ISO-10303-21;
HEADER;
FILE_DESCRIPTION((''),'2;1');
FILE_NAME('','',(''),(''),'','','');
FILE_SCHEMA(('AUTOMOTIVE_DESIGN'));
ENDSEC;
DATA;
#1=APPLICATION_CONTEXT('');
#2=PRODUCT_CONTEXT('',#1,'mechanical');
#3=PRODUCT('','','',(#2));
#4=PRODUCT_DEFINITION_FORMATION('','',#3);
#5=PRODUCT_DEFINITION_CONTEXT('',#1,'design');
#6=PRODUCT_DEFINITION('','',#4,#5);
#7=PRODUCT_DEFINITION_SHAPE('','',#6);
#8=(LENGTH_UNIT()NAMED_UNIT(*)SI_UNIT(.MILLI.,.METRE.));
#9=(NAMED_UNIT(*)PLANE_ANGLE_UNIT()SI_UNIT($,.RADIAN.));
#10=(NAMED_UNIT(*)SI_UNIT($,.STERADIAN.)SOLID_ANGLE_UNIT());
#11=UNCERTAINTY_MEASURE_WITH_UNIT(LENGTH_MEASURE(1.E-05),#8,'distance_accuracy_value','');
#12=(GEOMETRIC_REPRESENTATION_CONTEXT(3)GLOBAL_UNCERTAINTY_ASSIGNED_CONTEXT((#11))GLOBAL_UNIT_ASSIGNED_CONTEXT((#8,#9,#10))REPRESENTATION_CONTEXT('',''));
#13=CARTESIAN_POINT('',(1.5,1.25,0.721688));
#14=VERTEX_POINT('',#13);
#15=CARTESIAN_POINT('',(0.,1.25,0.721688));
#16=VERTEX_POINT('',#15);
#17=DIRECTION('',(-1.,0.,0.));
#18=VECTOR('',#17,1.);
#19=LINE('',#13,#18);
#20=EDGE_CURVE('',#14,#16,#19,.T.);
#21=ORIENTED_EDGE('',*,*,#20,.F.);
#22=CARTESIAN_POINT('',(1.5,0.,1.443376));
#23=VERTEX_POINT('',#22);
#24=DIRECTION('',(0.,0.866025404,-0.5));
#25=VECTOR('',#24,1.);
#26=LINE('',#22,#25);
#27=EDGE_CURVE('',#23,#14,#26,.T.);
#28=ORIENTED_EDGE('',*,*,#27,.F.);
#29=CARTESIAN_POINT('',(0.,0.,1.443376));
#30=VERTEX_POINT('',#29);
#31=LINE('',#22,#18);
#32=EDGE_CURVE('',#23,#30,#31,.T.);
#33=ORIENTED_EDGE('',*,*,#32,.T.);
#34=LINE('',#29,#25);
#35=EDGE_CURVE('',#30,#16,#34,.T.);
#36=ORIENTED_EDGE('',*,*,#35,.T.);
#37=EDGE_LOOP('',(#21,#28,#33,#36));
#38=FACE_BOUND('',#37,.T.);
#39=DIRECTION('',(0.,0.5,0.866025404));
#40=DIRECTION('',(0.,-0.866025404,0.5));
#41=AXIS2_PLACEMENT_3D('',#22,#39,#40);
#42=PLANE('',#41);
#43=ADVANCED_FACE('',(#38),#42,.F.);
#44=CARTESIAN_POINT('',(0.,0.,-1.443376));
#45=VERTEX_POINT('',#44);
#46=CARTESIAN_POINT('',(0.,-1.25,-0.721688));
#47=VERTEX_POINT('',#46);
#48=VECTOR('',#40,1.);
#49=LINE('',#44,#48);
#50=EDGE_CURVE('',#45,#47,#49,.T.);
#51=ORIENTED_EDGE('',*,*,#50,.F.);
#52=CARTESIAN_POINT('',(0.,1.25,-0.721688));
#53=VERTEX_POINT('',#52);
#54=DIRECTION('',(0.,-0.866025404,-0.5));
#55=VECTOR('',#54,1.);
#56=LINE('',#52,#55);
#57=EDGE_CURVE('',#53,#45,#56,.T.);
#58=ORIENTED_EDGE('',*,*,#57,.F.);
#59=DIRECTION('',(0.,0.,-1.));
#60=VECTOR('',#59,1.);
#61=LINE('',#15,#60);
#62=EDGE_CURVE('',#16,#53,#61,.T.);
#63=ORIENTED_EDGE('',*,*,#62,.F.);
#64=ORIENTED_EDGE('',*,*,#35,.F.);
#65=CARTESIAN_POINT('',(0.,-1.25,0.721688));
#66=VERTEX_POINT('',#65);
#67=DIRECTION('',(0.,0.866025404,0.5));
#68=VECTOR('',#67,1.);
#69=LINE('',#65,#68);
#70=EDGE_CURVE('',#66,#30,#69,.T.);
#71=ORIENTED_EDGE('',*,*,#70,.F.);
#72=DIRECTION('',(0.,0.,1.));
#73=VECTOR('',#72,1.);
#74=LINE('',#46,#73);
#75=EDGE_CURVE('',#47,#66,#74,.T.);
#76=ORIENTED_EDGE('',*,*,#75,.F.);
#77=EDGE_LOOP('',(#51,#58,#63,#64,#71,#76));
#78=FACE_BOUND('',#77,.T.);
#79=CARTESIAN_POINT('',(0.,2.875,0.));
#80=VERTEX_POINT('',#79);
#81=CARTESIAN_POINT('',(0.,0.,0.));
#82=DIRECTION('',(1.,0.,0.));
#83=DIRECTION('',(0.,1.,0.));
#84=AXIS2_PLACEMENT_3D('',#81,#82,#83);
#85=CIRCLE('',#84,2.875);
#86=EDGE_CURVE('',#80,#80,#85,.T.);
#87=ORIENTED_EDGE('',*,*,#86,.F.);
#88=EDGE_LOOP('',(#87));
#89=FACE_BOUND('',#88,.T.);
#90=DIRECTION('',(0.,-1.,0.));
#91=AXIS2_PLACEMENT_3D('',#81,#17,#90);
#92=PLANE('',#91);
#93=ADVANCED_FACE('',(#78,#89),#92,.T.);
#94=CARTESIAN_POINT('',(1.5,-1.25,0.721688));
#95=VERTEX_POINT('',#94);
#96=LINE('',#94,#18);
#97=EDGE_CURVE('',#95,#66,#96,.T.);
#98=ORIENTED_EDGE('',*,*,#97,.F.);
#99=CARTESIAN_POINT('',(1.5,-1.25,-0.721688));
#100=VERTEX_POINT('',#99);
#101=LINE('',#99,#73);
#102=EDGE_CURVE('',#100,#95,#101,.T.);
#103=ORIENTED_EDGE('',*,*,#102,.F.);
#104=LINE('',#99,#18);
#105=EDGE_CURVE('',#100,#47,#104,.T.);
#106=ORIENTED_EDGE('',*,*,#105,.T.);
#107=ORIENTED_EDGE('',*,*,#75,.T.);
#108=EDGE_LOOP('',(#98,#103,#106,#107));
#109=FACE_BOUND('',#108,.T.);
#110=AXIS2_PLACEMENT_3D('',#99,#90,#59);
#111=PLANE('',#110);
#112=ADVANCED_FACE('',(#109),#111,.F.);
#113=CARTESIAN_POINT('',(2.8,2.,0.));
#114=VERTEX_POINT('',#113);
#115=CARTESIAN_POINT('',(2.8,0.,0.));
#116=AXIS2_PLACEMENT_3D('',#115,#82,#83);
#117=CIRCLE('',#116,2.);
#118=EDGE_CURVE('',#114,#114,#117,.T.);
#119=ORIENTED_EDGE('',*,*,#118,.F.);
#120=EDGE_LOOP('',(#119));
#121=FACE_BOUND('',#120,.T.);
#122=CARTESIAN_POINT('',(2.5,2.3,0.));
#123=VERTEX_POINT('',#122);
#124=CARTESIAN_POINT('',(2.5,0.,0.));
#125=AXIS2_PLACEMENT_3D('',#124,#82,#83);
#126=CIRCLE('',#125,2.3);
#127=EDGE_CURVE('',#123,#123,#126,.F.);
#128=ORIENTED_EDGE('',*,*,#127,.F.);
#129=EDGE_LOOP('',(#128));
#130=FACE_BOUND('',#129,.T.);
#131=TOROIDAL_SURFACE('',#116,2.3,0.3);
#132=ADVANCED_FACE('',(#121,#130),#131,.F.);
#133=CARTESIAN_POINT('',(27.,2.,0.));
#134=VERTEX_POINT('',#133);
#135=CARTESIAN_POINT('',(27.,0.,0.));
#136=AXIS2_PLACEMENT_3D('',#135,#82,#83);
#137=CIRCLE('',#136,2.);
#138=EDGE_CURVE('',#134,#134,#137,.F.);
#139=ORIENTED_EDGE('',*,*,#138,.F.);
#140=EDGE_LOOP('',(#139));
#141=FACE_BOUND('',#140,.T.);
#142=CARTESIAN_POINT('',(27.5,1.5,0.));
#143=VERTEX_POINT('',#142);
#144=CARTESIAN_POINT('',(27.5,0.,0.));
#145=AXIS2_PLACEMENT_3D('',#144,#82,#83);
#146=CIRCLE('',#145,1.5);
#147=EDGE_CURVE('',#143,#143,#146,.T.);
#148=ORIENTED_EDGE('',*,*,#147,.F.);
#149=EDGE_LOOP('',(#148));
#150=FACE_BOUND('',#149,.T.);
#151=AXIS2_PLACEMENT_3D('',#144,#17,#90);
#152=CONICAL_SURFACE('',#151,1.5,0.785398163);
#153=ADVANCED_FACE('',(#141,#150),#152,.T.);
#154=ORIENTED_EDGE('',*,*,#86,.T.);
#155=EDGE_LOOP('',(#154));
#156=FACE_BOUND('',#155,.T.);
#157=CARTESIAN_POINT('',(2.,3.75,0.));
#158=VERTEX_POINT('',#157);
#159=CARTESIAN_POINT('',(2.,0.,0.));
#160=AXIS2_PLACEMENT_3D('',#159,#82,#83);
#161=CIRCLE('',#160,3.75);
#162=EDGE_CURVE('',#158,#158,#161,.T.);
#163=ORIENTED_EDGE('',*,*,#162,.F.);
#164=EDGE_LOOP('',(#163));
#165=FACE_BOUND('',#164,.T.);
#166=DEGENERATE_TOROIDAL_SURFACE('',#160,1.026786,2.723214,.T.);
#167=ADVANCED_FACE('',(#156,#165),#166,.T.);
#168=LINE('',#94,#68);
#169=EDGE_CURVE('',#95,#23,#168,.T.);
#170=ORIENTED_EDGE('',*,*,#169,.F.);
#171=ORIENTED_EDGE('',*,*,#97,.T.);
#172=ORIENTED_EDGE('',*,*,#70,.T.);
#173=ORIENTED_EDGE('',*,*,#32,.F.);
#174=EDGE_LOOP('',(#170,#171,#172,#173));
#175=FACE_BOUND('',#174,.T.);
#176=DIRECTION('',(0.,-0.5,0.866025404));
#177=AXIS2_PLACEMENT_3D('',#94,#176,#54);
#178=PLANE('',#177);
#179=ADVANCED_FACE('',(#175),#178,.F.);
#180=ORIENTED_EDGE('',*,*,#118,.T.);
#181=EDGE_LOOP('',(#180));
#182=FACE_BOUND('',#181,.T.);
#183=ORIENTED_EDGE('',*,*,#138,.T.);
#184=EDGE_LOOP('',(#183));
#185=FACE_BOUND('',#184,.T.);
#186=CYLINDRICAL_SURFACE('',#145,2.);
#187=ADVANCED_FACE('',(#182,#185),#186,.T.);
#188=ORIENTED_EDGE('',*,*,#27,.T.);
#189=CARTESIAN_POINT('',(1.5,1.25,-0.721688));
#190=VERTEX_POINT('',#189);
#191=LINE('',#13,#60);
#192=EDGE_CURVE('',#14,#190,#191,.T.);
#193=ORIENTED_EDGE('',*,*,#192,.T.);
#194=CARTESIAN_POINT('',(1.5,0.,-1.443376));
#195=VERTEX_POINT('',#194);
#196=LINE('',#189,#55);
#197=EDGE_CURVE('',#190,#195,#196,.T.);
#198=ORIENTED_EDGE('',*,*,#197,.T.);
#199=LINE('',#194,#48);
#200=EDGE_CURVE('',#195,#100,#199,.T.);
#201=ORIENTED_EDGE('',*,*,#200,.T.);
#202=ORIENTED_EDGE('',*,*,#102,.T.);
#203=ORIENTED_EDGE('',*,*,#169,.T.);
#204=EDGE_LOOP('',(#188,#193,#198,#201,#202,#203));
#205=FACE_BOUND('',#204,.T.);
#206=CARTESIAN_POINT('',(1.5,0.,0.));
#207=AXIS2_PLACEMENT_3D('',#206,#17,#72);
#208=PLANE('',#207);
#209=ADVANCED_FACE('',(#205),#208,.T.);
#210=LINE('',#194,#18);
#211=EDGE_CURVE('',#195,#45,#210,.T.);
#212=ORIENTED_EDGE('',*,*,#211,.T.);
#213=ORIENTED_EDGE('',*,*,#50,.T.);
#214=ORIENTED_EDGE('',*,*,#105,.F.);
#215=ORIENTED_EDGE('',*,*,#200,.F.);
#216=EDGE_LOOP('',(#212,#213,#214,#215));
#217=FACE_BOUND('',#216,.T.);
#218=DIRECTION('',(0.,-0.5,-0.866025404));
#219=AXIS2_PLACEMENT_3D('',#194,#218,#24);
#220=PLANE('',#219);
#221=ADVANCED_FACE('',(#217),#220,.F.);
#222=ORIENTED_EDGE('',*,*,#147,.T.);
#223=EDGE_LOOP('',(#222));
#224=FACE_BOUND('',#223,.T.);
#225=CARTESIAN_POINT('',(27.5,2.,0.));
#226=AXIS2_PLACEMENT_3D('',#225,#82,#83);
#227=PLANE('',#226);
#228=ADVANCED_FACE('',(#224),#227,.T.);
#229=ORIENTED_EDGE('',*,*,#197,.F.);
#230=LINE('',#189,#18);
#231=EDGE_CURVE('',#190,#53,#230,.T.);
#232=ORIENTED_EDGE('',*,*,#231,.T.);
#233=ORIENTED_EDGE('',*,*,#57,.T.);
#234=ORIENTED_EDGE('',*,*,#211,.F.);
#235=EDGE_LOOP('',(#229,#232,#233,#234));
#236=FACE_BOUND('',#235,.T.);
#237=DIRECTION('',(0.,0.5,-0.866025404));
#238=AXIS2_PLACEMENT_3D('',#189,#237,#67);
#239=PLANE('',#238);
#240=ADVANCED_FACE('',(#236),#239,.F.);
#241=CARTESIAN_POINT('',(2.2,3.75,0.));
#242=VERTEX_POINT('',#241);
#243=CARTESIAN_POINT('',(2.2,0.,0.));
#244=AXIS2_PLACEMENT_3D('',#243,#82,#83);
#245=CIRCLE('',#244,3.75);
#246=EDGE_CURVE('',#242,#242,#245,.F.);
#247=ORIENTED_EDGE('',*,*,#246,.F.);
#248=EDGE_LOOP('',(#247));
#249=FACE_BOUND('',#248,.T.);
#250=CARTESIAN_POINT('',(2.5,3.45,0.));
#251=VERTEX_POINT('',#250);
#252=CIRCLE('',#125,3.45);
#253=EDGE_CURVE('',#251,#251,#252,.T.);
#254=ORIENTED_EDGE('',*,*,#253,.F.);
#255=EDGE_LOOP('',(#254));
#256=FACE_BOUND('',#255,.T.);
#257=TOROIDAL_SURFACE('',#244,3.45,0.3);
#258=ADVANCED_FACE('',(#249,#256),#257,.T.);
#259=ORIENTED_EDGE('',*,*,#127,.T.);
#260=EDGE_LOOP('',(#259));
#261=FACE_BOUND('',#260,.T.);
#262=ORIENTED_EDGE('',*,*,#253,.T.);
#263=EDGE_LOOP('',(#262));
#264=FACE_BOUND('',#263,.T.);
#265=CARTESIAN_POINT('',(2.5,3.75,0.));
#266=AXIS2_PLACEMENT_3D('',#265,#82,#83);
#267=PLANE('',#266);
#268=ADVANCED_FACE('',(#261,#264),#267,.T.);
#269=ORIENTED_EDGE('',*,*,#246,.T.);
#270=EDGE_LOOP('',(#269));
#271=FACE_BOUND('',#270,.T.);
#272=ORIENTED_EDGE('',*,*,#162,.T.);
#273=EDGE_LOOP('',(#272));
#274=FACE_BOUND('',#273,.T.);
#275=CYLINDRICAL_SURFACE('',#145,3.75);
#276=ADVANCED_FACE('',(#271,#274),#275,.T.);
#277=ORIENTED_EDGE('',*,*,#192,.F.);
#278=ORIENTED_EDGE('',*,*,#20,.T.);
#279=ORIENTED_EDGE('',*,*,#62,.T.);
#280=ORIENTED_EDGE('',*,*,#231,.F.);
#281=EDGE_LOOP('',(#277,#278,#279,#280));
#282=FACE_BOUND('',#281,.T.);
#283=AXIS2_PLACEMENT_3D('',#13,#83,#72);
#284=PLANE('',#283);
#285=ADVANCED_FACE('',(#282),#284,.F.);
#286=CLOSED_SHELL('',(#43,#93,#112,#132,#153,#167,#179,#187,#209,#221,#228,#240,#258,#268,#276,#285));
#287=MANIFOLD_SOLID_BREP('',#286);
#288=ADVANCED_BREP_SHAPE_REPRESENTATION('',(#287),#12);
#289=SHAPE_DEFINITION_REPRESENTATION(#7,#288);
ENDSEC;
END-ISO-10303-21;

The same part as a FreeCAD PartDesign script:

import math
import FreeCAD as App
import Part
import Sketcher
from FreeCAD import Vector
Q = App.Units.Quantity


def edges_at(feature, points):
    """Names of the edges that pass closest to the given points."""
    edges = feature.Shape.Edges
    near = lambda p: min(range(len(edges)), key=lambda i: edges[i].distToShape(Part.Vertex(*p))[0])
    return sorted({f"Edge{near(p) + 1}" for p in points})


def add_polygon(sketch, points):
    """Adds a closed chain of lines whose ends are joined by coincident constraints."""
    first, n = sketch.GeometryCount, len(points)
    for a, b in zip(points, points[1:] + points[:1]):
        sketch.addGeometry(Part.LineSegment(App.Vector(*a, 0), App.Vector(*b, 0)), False)
    for i in range(n):
        sketch.addConstraint(Sketcher.Constraint("Coincident", first + i, 2, first + (i + 1) % n, 1))

doc = App.newDocument("Part")
body = doc.addObject("PartDesign::Body", "Body")

sketch1 = body.newObject("Sketcher::SketchObject", "Sketch")
sketch1.AttachmentSupport = (doc.getObject("XY_Plane"), [""])
sketch1.MapMode = "FlatFace"
sketch1.addGeometry(Part.LineSegment(Vector(0, 2.9, 0), Vector(0, 0, 0)), False)
sketch1.addGeometry(Part.LineSegment(Vector(0, 0, 0), Vector(27.5, 0, 0)), False)
sketch1.addGeometry(Part.LineSegment(Vector(27.5, 0, 0), Vector(27.5, 2, 0)), False)
sketch1.addGeometry(Part.LineSegment(Vector(27.5, 2, 0), Vector(2.5, 2, 0)), False)
sketch1.addGeometry(Part.LineSegment(Vector(2.5, 2, 0), Vector(2.5, 3.8, 0)), False)
sketch1.addGeometry(Part.LineSegment(Vector(2.5, 3.8, 0), Vector(2, 3.8, 0)), False)
sketch1.addGeometry(Part.ArcOfCircle(Part.Circle(Vector(2, 1, 0), Vector(0, 0, 1), 2.7), math.radians(90), math.radians(137)), False)
sketch1.addConstraint(Sketcher.Constraint("Coincident", 0, 2, 1, 1))
sketch1.addConstraint(Sketcher.Constraint("Coincident", 1, 2, 2, 1))
sketch1.addConstraint(Sketcher.Constraint("Coincident", 2, 2, 3, 1))
sketch1.addConstraint(Sketcher.Constraint("Coincident", 3, 2, 4, 1))
sketch1.addConstraint(Sketcher.Constraint("Coincident", 4, 2, 5, 1))
sketch1.addConstraint(Sketcher.Constraint("Tangent", 5, 2, 6, 1))
sketch1.addConstraint(Sketcher.Constraint("Coincident", 6, 2, 0, 1))
sketch1.addConstraint(Sketcher.Constraint("Vertical", 0))
sketch1.addConstraint(Sketcher.Constraint("Horizontal", 1))
sketch1.addConstraint(Sketcher.Constraint("Vertical", 2))
sketch1.addConstraint(Sketcher.Constraint("Horizontal", 3))
sketch1.addConstraint(Sketcher.Constraint("Vertical", 4))
sketch1.addConstraint(Sketcher.Constraint("Horizontal", 5))
sketch1.addConstraint(Sketcher.Constraint("Coincident", 0, 2, -1, 1))
sketch1.addConstraint(Sketcher.Constraint("DistanceX", 3, 2, 3, 1, 25.0))
sketch1.addConstraint(Sketcher.Constraint("DistanceY", 2, 1, 2, 2, 2.0))
sketch1.addConstraint(Sketcher.Constraint("DistanceX", 1, 1, 1, 2, 27.5))
sketch1.addConstraint(Sketcher.Constraint("DistanceX", 5, 2, 5, 1, 0.5))
sketch1.addConstraint(Sketcher.Constraint("DistanceY", 4, 1, 4, 2, 1.75))
sketch1.addConstraint(Sketcher.Constraint("DistanceY", 0, 2, 0, 1, 2.875))
revolution = body.newObject("PartDesign::Revolution", "Revolution")
revolution.Profile = sketch1
revolution.ReferenceAxis = (sketch1, ["H_Axis"])
revolution.Angle = 360

sketch2 = body.newObject("Sketcher::SketchObject", "Sketch001")
sketch2.AttachmentSupport = (doc.getObject("YZ_Plane"), [""])
sketch2.MapMode = "FlatFace"
add_polygon(sketch2, [(1.2, 0.7), (1.2, -0.7), (0, -1.4), (-1.2, -0.7), (-1.2, 0.7), (0, 1.4)])
sketch2.addConstraint(Sketcher.Constraint("Vertical", 0))
sketch2.addConstraint(Sketcher.Constraint("Vertical", 3))
sketch2.addConstraint(Sketcher.Constraint("Symmetric", 0, 2, 3, 2, -1, 1))
sketch2.addConstraint(Sketcher.Constraint("Symmetric", 1, 2, 4, 2, -1, 1))
sketch2.addConstraint(Sketcher.Constraint("PointOnObject", 1, 2, -2))
sketch2.addConstraint(Sketcher.Constraint("Parallel", 2, 5))
sketch2.addConstraint(Sketcher.Constraint("Horizontal", 0, 2, 2, 2))
sketch2.addConstraint(Sketcher.Constraint("Angle", 1, Q("-150 deg")))
sketch2.addConstraint(Sketcher.Constraint("DistanceX", 2, 2, 0, 2, 2.5))
sketch2.addConstraint(Sketcher.Constraint("DistanceY", 0, 2, 0, 1, 1.443376))
pocket1 = body.newObject("PartDesign::Pocket", "Pocket")
pocket1.Profile = sketch2
pocket1.Length = 1.5
pocket1.Reversed = True
doc.recompute()

fillet = body.newObject("PartDesign::Fillet", "Fillet")
fillet.Base = (pocket1, edges_at(pocket1, [(2.5, -2, 0), (2.5, -3.75, 0)]))
fillet.Radius = 0.3
doc.recompute()

chamfer = body.newObject("PartDesign::Chamfer", "Chamfer")
chamfer.Base = (fillet, edges_at(fillet, [(27.5, -2, 0)]))
chamfer.Size = 0.5

doc.recompute()
